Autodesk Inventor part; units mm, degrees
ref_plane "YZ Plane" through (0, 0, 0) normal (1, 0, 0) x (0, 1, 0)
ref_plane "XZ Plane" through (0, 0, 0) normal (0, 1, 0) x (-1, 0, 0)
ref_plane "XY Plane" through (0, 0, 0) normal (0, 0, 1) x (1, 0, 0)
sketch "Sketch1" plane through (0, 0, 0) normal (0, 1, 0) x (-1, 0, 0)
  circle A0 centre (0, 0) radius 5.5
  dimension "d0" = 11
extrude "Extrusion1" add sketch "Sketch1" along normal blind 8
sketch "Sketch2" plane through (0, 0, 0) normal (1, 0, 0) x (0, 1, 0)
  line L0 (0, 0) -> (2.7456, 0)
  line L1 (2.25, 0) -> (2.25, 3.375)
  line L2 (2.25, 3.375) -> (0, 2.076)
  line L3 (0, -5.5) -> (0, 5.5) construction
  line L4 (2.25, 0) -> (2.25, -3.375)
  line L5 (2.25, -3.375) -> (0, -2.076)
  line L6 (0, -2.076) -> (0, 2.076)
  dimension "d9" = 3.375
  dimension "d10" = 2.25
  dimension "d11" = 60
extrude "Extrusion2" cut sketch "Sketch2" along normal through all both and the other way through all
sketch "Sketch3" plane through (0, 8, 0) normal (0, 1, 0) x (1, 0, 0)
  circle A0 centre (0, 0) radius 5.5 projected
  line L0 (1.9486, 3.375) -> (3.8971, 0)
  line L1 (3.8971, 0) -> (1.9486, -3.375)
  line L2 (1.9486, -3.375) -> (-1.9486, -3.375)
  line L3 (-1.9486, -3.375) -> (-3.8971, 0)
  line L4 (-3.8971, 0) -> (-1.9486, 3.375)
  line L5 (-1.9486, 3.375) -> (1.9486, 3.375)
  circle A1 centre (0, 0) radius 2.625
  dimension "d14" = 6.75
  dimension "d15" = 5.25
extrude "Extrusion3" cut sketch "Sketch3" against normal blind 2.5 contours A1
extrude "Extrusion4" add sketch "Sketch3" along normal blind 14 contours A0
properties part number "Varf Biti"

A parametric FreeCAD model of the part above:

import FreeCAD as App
import Part
import Sketcher
from FreeCAD import Vector
Q = App.Units.Quantity

doc = App.newDocument("Part")
body = doc.addObject("PartDesign::Body", "Body")

# Sketch on XZ plane
sketch1 = body.newObject("Sketcher::SketchObject", "Sketch")
sketch1.AttachmentSupport = (doc.getObject("XZ_Plane"), [""])
sketch1.MapMode = "FlatFace"
sketch1.addGeometry(Part.Circle(Vector(0, 0, 0), Vector(0, 0, 1), 5.5), False)
sketch1.addConstraint([
    Sketcher.Constraint("Coincident", 0, 3, -1, 1),
    Sketcher.Constraint("Diameter", 0, Q("11 mm")),
])
pad1 = body.newObject("PartDesign::Pad", "Pad")
pad1.Profile = sketch1
pad1.Length = 8
pad1.Reversed = True

# Sketch on YZ plane
sketch2 = body.newObject("Sketcher::SketchObject", "Sketch001")
sketch2.AttachmentSupport = (doc.getObject("YZ_Plane"), [""])
sketch2.MapMode = "FlatFace"
sketch2.addGeometry([
    Part.LineSegment(Vector(0, 2.076, 0), Vector(0, -2.076, 0)),
    Part.LineSegment(Vector(0, -2.076, 0), Vector(2.25, -3.375, 0)),
    Part.LineSegment(Vector(2.25, -3.375, 0), Vector(2.25, 3.375, 0)),
    Part.LineSegment(Vector(2.25, 3.375, 0), Vector(0, 2.076, 0)),
], False)
sketch2.addConstraint([
    Sketcher.Constraint("Coincident", 0, 2, 1, 1),
    Sketcher.Constraint("Coincident", 1, 2, 2, 1),
    Sketcher.Constraint("Coincident", 2, 2, 3, 1),
    Sketcher.Constraint("Coincident", 3, 2, 0, 1),
    Sketcher.Constraint("Vertical", 0),
    Sketcher.Constraint("Vertical", 2),
    Sketcher.Constraint("Symmetric", 0, 2, 3, 2, -1, 1),
    Sketcher.Constraint("Equal", 1, 3),
    Sketcher.Constraint("DistanceX", -1, 1, 1, 2, Q("2.25 mm")),
    Sketcher.Constraint("Angle", 1, Q("-29.9993 deg")),
    Sketcher.Constraint("DistanceY", 1, 2, -1, 1, Q("3.375 mm")),
])
pocket1 = body.newObject("PartDesign::Pocket", "Pocket")
pocket1.Profile = sketch2
pocket1.Type = "ThroughAll"
pocket1.Midplane = True

# Sketch on XZ plane
sketch3 = body.newObject("Sketcher::SketchObject", "Sketch002")
sketch3.AttachmentSupport = (doc.getObject("XZ_Plane"), [""])
sketch3.MapMode = "FlatFace"
sketch3.AttachmentOffset = App.Placement(Vector(0, 0, -8), App.Rotation())
sketch3.addGeometry(Part.Circle(Vector(0, 0, 0), Vector(0, 0, 1), 2.625), False)
sketch3.addConstraint([
    Sketcher.Constraint("Coincident", 0, 3, -1, 1),
    Sketcher.Constraint("Diameter", 0, Q("5.25 mm")),
])
pocket2 = body.newObject("PartDesign::Pocket", "Pocket001")
pocket2.Profile = sketch3
pocket2.Length = 2.5
pocket2.Reversed = True

# Sketch on XZ plane
sketch4 = body.newObject("Sketcher::SketchObject", "Sketch003")
sketch4.AttachmentSupport = (doc.getObject("XZ_Plane"), [""])
sketch4.MapMode = "FlatFace"
sketch4.AttachmentOffset = App.Placement(Vector(0, 0, -8), App.Rotation())
sketch4.addGeometry([
    Part.Circle(Vector(0, 0, 0), Vector(0, 0, 1), 5.5),  # 0
    Part.LineSegment(Vector(-1.9486, -3.375, 0), Vector(1.9486, -3.375, 0)),  # 1
    Part.LineSegment(Vector(1.9486, -3.375, 0), Vector(3.8971, 0, 0)),  # 2
    Part.LineSegment(Vector(3.8971, 0, 0), Vector(1.9486, 3.375, 0)),  # 3
    Part.LineSegment(Vector(1.9486, 3.375, 0), Vector(-1.9486, 3.375, 0)),  # 4
    Part.LineSegment(Vector(-1.9486, 3.375, 0), Vector(-3.8971, 0, 0)),  # 5
    Part.LineSegment(Vector(-3.8971, 0, 0), Vector(-1.9486, -3.375, 0)),  # 6
], False)
sketch4.addConstraint([
    Sketcher.Constraint("Coincident", 1, 2, 2, 1),
    Sketcher.Constraint("Coincident", 2, 2, 3, 1),
    Sketcher.Constraint("Coincident", 3, 2, 4, 1),
    Sketcher.Constraint("Coincident", 4, 2, 5, 1),
    Sketcher.Constraint("Coincident", 5, 2, 6, 1),
    Sketcher.Constraint("Coincident", 6, 2, 1, 1),
    Sketcher.Constraint("Horizontal", 1),
    Sketcher.Constraint("Horizontal", 4),
    Sketcher.Constraint("Coincident", 0, 3, -1, 1),
    Sketcher.Constraint("Symmetric", 1, 2, 4, 2, -1, 1),
    Sketcher.Constraint("Symmetric", 2, 2, 5, 2, -1, 1),
    Sketcher.Constraint("PointOnObject", 2, 2, -1),
    Sketcher.Constraint("Parallel", 3, 6),
    Sketcher.Constraint("Vertical", 1, 2, 3, 2),
    Sketcher.Constraint("Diameter", 0, Q("11 mm")),
    Sketcher.Constraint("Angle", 2, Q("60.0007 deg")),
    Sketcher.Constraint("DistanceY", 1, 2, 3, 2, Q("6.75 mm")),
    Sketcher.Constraint("DistanceX", 1, 1, 1, 2, Q("3.8972 mm")),
])
pad2 = body.newObject("PartDesign::Pad", "Pad001")
pad2.Profile = sketch4
pad2.Length = 14
pad2.Reversed = True

doc.recompute()
